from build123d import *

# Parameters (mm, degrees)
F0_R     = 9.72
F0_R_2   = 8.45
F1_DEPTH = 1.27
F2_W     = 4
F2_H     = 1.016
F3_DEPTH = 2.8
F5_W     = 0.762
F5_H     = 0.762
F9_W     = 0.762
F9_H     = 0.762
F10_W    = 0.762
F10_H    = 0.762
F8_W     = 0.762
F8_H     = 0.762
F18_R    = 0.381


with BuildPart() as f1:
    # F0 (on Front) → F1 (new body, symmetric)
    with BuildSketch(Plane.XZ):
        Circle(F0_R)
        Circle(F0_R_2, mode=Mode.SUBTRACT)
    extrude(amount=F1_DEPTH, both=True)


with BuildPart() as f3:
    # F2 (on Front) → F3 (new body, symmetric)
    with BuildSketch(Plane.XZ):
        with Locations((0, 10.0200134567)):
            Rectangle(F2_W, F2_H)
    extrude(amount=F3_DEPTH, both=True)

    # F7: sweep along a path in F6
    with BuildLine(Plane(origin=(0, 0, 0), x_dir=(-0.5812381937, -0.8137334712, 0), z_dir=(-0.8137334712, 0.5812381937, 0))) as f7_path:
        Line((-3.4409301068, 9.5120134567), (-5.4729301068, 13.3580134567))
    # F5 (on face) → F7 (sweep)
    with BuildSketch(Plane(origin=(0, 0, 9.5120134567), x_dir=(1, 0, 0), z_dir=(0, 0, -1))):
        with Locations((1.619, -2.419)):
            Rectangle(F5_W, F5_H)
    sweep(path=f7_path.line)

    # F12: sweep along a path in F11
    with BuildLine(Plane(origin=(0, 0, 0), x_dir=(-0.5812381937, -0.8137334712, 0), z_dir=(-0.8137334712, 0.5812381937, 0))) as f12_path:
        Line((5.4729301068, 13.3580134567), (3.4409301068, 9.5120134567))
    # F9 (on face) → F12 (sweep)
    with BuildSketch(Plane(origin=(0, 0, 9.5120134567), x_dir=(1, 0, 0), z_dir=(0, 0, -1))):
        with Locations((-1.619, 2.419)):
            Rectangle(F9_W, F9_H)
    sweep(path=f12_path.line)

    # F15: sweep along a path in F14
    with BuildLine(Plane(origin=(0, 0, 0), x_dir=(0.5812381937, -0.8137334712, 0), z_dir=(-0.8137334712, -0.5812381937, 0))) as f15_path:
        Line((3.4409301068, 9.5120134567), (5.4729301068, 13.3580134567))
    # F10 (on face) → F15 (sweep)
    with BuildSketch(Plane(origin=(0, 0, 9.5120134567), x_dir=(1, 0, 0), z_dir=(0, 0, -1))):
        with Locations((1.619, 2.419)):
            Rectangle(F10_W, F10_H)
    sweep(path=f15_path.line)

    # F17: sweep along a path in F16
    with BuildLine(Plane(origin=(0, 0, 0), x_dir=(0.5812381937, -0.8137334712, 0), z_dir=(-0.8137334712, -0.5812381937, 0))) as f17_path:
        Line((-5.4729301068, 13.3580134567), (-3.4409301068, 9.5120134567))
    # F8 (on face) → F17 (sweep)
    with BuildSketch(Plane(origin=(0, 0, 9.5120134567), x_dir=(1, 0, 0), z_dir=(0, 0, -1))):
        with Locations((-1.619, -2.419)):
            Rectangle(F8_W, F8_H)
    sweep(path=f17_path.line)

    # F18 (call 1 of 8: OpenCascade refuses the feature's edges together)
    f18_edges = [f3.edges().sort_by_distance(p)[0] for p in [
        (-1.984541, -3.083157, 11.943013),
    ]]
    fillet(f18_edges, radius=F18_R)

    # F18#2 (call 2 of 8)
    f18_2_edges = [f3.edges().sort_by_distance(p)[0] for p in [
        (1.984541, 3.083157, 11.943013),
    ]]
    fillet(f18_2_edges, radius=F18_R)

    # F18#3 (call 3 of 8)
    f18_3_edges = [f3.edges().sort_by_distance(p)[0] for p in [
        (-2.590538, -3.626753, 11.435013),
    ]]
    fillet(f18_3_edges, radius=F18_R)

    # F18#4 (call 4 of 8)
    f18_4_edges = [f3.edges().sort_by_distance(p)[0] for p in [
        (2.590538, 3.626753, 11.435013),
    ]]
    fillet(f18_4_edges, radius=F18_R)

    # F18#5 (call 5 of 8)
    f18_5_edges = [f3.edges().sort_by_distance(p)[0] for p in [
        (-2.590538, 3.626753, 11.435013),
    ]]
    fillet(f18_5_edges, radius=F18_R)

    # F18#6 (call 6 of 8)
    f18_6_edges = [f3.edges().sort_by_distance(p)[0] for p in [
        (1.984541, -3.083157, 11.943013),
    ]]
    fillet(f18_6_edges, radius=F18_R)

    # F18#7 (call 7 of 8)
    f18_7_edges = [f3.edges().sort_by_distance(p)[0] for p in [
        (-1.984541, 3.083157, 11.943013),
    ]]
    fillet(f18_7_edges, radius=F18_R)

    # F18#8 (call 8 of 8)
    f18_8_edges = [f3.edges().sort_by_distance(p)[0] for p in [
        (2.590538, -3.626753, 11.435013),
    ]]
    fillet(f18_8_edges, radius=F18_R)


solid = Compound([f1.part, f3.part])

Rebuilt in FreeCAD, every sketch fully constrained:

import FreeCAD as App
import Part
import Sketcher
from FreeCAD import Vector
Q = App.Units.Quantity


def edges_at(feature, points):
    """Names of the edges that pass closest to the given points."""
    edges = feature.Shape.Edges
    near = lambda p: min(range(len(edges)), key=lambda i: edges[i].distToShape(Part.Vertex(*p))[0])
    return sorted({f"Edge{near(p) + 1}" for p in points})

doc = App.newDocument("Part")
body = doc.addObject("PartDesign::Body", "Body")

sketch1 = body.newObject("Sketcher::SketchObject", "Sketch")
sketch1.AttachmentSupport = (doc.getObject("XZ_Plane"), [""])
sketch1.MapMode = "FlatFace"
sketch1.addGeometry(Part.Circle(Vector(0, 0, 0), Vector(0, 0, 1), 10), False)
sketch1.addGeometry(Part.Circle(Vector(0, 0, 0), Vector(0, 0, 1), 8), False)
sketch1.addConstraint(Sketcher.Constraint("Coincident", 0, 3, -1, 1))
sketch1.addConstraint(Sketcher.Constraint("Coincident", 1, 3, -1, 1))
sketch1.addConstraint(Sketcher.Constraint("Diameter", 0, Q("19.44 mm")))
sketch1.addConstraint(Sketcher.Constraint("Diameter", 1, Q("16.9 mm")))
pad1 = body.newObject("PartDesign::Pad", "Pad")
pad1.Profile = sketch1
pad1.Length = Q("0.1 in")
pad1.Midplane = True
body2 = doc.addObject("PartDesign::Body", "Body001")

sketch2 = body2.newObject("Sketcher::SketchObject", "Sketch001")
sketch2.AttachmentSupport = (doc.getObject("XZ_Plane001"), [""])
sketch2.MapMode = "FlatFace"
sketch2.addGeometry(Part.LineSegment(Vector(-2, 10.5, 0), Vector(-2, 9.5, 0)), False)
sketch2.addGeometry(Part.LineSegment(Vector(-2, 9.5, 0), Vector(2, 9.5, 0)), False)
sketch2.addGeometry(Part.LineSegment(Vector(2, 9.5, 0), Vector(2, 10.5, 0)), False)
sketch2.addGeometry(Part.LineSegment(Vector(2, 10.5, 0), Vector(-2, 10.5, 0)), False)
sketch2.addConstraint(Sketcher.Constraint("Coincident", 0, 2, 1, 1))
sketch2.addConstraint(Sketcher.Constraint("Coincident", 1, 2, 2, 1))
sketch2.addConstraint(Sketcher.Constraint("Coincident", 2, 2, 3, 1))
sketch2.addConstraint(Sketcher.Constraint("Coincident", 3, 2, 0, 1))
sketch2.addConstraint(Sketcher.Constraint("Vertical", 0))
sketch2.addConstraint(Sketcher.Constraint("Horizontal", 1))
sketch2.addConstraint(Sketcher.Constraint("Vertical", 2))
sketch2.addConstraint(Sketcher.Constraint("Horizontal", 3))
sketch2.addConstraint(Sketcher.Constraint("DistanceY", 0, 2, 0, 1, Q("0.04 in")))
sketch2.addConstraint(Sketcher.Constraint("DistanceX", 1, 1, 1, 2, Q("4 mm")))
sketch2.addConstraint(Sketcher.Constraint("DistanceX", 0, 2, -1, 1, Q("2 mm")))
sketch2.addConstraint(Sketcher.Constraint("DistanceY", -1, 1, 0, 2, Q("9.512013 mm")))
pad2 = body2.newObject("PartDesign::Pad", "Pad001")
pad2.Profile = sketch2
pad2.Length = 5.6
pad2.Midplane = True

sketch3 = body2.newObject("Sketcher::SketchObject", "Sketch002")
sketch3.AttachmentSupport = (doc.getObject("XY_Plane001"), [""])
sketch3.MapMode = "FlatFace"
sketch3.AttachmentOffset = App.Placement(Vector(0, 0, 9.512013), App.Rotation())
sketch3.addGeometry(Part.LineSegment(Vector(1.2, 2, 0), Vector(1.2, 2.8, 0)), False)
sketch3.addGeometry(Part.LineSegment(Vector(1.2, 2.8, 0), Vector(2, 2.8, 0)), False)
sketch3.addGeometry(Part.LineSegment(Vector(2, 2.8, 0), Vector(2, 2, 0)), False)
sketch3.addGeometry(Part.LineSegment(Vector(2, 2, 0), Vector(1.2, 2, 0)), False)
sketch3.addConstraint(Sketcher.Constraint("Coincident", 0, 2, 1, 1))
sketch3.addConstraint(Sketcher.Constraint("Coincident", 1, 2, 2, 1))
sketch3.addConstraint(Sketcher.Constraint("Coincident", 2, 2, 3, 1))
sketch3.addConstraint(Sketcher.Constraint("Coincident", 3, 2, 0, 1))
sketch3.addConstraint(Sketcher.Constraint("Vertical", 0))
sketch3.addConstraint(Sketcher.Constraint("Horizontal", 1))
sketch3.addConstraint(Sketcher.Constraint("Vertical", 2))
sketch3.addConstraint(Sketcher.Constraint("Horizontal", 3))
sketch3.addConstraint(Sketcher.Constraint("Equal", 3, 0))
sketch3.addConstraint(Sketcher.Constraint("DistanceX", 1, 1, 1, 2, Q("0.03 in")))
sketch3.addConstraint(Sketcher.Constraint("DistanceX", -1, 1, 0, 2, Q("1.238 mm")))
sketch3.addConstraint(Sketcher.Constraint("DistanceY", -1, 1, 0, 2, Q("2.8 mm")))

sketch4 = body2.newObject("Sketcher::SketchObject", "Sketch003")
sketch4.Placement = App.Placement(Vector(0, -1.088325, 0.467902), App.Rotation(Vector(0, 0.394972596, 0.918692902), Vector(1, 0, 0), Vector(0, 0.918692902, -0.394972596), "ZXY"))
sketch4.addGeometry(Part.LineSegment(Vector(9.8, 2, 0), Vector(14, 3.2, 0)), False)
sketch4.addConstraint(Sketcher.Constraint("DistanceY", -1, 1, 0, 1, Q("2 mm")))
sketch4.addConstraint(Sketcher.Constraint("Distance", 0, Q("4.349798 mm")))
sketch4.addConstraint(Sketcher.Constraint("DistanceX", -1, 1, 0, 1, Q("9.844543 mm")))
sketch4.addConstraint(Sketcher.Constraint("DistanceX", -1, 1, 0, 2, Q("14.030925 mm")))
doc.recompute()

additivepipe = body2.newObject("PartDesign::AdditivePipe", "AdditivePipe")
additivepipe.Profile = sketch3
additivepipe.Spine = (sketch4, ["Edge1"])

sketch5 = body2.newObject("Sketcher::SketchObject", "Sketch004")
sketch5.AttachmentSupport = (doc.getObject("XY_Plane001"), [""])
sketch5.MapMode = "FlatFace"
sketch5.AttachmentOffset = App.Placement(Vector(0, 0, 9.512013), App.Rotation())
sketch5.addGeometry(Part.LineSegment(Vector(-2, -2.8, 0), Vector(-2, -2, 0)), False)
sketch5.addGeometry(Part.LineSegment(Vector(-2, -2, 0), Vector(-1.2, -2, 0)), False)
sketch5.addGeometry(Part.LineSegment(Vector(-1.2, -2, 0), Vector(-1.2, -2.8, 0)), False)
sketch5.addGeometry(Part.LineSegment(Vector(-1.2, -2.8, 0), Vector(-2, -2.8, 0)), False)
sketch5.addConstraint(Sketcher.Constraint("Coincident", 0, 2, 1, 1))
sketch5.addConstraint(Sketcher.Constraint("Coincident", 1, 2, 2, 1))
sketch5.addConstraint(Sketcher.Constraint("Coincident", 2, 2, 3, 1))
sketch5.addConstraint(Sketcher.Constraint("Coincident", 3, 2, 0, 1))
sketch5.addConstraint(Sketcher.Constraint("Vertical", 0))
sketch5.addConstraint(Sketcher.Constraint("Horizontal", 1))
sketch5.addConstraint(Sketcher.Constraint("Vertical", 2))
sketch5.addConstraint(Sketcher.Constraint("Horizontal", 3))
sketch5.addConstraint(Sketcher.Constraint("Equal", 3, 0))
sketch5.addConstraint(Sketcher.Constraint("DistanceX", 1, 1, 1, 2, Q("0.03 in")))
sketch5.addConstraint(Sketcher.Constraint("DistanceX", 0, 2, -1, 1, Q("2 mm")))
sketch5.addConstraint(Sketcher.Constraint("DistanceY", 0, 2, -1, 1, Q("2.038 mm")))

sketch6 = body2.newObject("Sketcher::SketchObject", "Sketch005")
sketch6.Placement = App.Placement(Vector(0, 1.088325, 0.467902), App.Rotation(Vector(0, 0.394972596, -0.918692902), Vector(1, 0, 0), Vector(0, -0.918692902, -0.394972596), "ZXY"))
sketch6.addGeometry(Part.LineSegment(Vector(-14, -3.2, 0), Vector(-9.8, -2, 0)), False)
sketch6.addConstraint(Sketcher.Constraint("DistanceY", 0, 2, -1, 1, Q("2 mm")))
sketch6.addConstraint(Sketcher.Constraint("Distance", 0, Q("4.349798 mm")))
sketch6.addConstraint(Sketcher.Constraint("DistanceX", 0, 1, -1, 1, Q("14.030925 mm")))
sketch6.addConstraint(Sketcher.Constraint("DistanceY", 0, 1, -1, 1, Q("3.181076 mm")))
doc.recompute()

additivepipe2 = body2.newObject("PartDesign::AdditivePipe", "AdditivePipe001")
additivepipe2.Profile = sketch5
additivepipe2.Spine = (sketch6, ["Edge1"])

sketch7 = body2.newObject("Sketcher::SketchObject", "Sketch006")
sketch7.AttachmentSupport = (doc.getObject("XY_Plane001"), [""])
sketch7.MapMode = "FlatFace"
sketch7.AttachmentOffset = App.Placement(Vector(0, 0, 9.512013), App.Rotation())
sketch7.addGeometry(Part.LineSegment(Vector(1.2, -2.8, 0), Vector(1.2, -2, 0)), False)
sketch7.addGeometry(Part.LineSegment(Vector(1.2, -2, 0), Vector(2, -2, 0)), False)
sketch7.addGeometry(Part.LineSegment(Vector(2, -2, 0), Vector(2, -2.8, 0)), False)
sketch7.addGeometry(Part.LineSegment(Vector(2, -2.8, 0), Vector(1.2, -2.8, 0)), False)
sketch7.addConstraint(Sketcher.Constraint("Coincident", 0, 2, 1, 1))
sketch7.addConstraint(Sketcher.Constraint("Coincident", 1, 2, 2, 1))
sketch7.addConstraint(Sketcher.Constraint("Coincident", 2, 2, 3, 1))
sketch7.addConstraint(Sketcher.Constraint("Coincident", 3, 2, 0, 1))
sketch7.addConstraint(Sketcher.Constraint("Vertical", 0))
sketch7.addConstraint(Sketcher.Constraint("Horizontal", 1))
sketch7.addConstraint(Sketcher.Constraint("Vertical", 2))
sketch7.addConstraint(Sketcher.Constraint("Horizontal", 3))
sketch7.addConstraint(Sketcher.Constraint("Equal", 3, 0))
sketch7.addConstraint(Sketcher.Constraint("DistanceX", 1, 1, 1, 2, Q("0.03 in")))
sketch7.addConstraint(Sketcher.Constraint("DistanceX", -1, 1, 0, 2, Q("1.238 mm")))
sketch7.addConstraint(Sketcher.Constraint("DistanceY", 0, 2, -1, 1, Q("2.038 mm")))

sketch8 = body2.newObject("Sketcher::SketchObject", "Sketch007")
sketch8.Placement = App.Placement(Vector(0, 1.088325, 0.467902), App.Rotation(Vector(0, -0.394972596, 0.918692902), Vector(1, 0, 0), Vector(0, 0.918692902, 0.394972596), "ZXY"))
sketch8.addGeometry(Part.LineSegment(Vector(9.8, 2, 0), Vector(14, 3.2, 0)), False)
sketch8.addConstraint(Sketcher.Constraint("DistanceY", -1, 1, 0, 1, Q("2 mm")))
sketch8.addConstraint(Sketcher.Constraint("Distance", 0, Q("4.349798 mm")))
sketch8.addConstraint(Sketcher.Constraint("DistanceX", -1, 1, 0, 1, Q("9.844543 mm")))
sketch8.addConstraint(Sketcher.Constraint("DistanceX", -1, 1, 0, 2, Q("14.030925 mm")))
doc.recompute()

additivepipe3 = body2.newObject("PartDesign::AdditivePipe", "AdditivePipe002")
additivepipe3.Profile = sketch7
additivepipe3.Spine = (sketch8, ["Edge1"])

sketch9 = body2.newObject("Sketcher::SketchObject", "Sketch008")
sketch9.AttachmentSupport = (doc.getObject("XY_Plane001"), [""])
sketch9.MapMode = "FlatFace"
sketch9.AttachmentOffset = App.Placement(Vector(0, 0, 9.512013), App.Rotation())
sketch9.addGeometry(Part.LineSegment(Vector(-2, 2, 0), Vector(-2, 2.8, 0)), False)
sketch9.addGeometry(Part.LineSegment(Vector(-2, 2.8, 0), Vector(-1.2, 2.8, 0)), False)
sketch9.addGeometry(Part.LineSegment(Vector(-1.2, 2.8, 0), Vector(-1.2, 2, 0)), False)
sketch9.addGeometry(Part.LineSegment(Vector(-1.2, 2, 0), Vector(-2, 2, 0)), False)
sketch9.addConstraint(Sketcher.Constraint("Coincident", 0, 2, 1, 1))
sketch9.addConstraint(Sketcher.Constraint("Coincident", 1, 2, 2, 1))
sketch9.addConstraint(Sketcher.Constraint("Coincident", 2, 2, 3, 1))
sketch9.addConstraint(Sketcher.Constraint("Coincident", 3, 2, 0, 1))
sketch9.addConstraint(Sketcher.Constraint("Vertical", 0))
sketch9.addConstraint(Sketcher.Constraint("Horizontal", 1))
sketch9.addConstraint(Sketcher.Constraint("Vertical", 2))
sketch9.addConstraint(Sketcher.Constraint("Horizontal", 3))
sketch9.addConstraint(Sketcher.Constraint("Equal", 3, 0))
sketch9.addConstraint(Sketcher.Constraint("DistanceX", 1, 1, 1, 2, Q("0.03 in")))
sketch9.addConstraint(Sketcher.Constraint("DistanceX", 0, 2, -1, 1, Q("2 mm")))
sketch9.addConstraint(Sketcher.Constraint("DistanceY", -1, 1, 0, 2, Q("2.8 mm")))

sketch10 = body2.newObject("Sketcher::SketchObject", "Sketch009")
sketch10.Placement = App.Placement(Vector(0, -1.088325, 0.467902), App.Rotation(Vector(0, -0.394972596, -0.918692902), Vector(1, 0, 0), Vector(0, -0.918692902, 0.394972596), "ZXY"))
sketch10.addGeometry(Part.LineSegment(Vector(-14, -3.2, 0), Vector(-9.8, -2, 0)), False)
sketch10.addConstraint(Sketcher.Constraint("DistanceY", 0, 2, -1, 1, Q("2 mm")))
sketch10.addConstraint(Sketcher.Constraint("Distance", 0, Q("4.349798 mm")))
sketch10.addConstraint(Sketcher.Constraint("DistanceX", 0, 1, -1, 1, Q("14.030925 mm")))
sketch10.addConstraint(Sketcher.Constraint("DistanceY", 0, 1, -1, 1, Q("3.181076 mm")))
doc.recompute()

additivepipe4 = body2.newObject("PartDesign::AdditivePipe", "AdditivePipe003")
additivepipe4.Profile = sketch9
additivepipe4.Spine = (sketch10, ["Edge1"])
doc.recompute()

fillet = body2.newObject("PartDesign::Fillet", "Fillet")
fillet.Base = (additivepipe4, edges_at(additivepipe4, [(-1.985, -3.083, 11.943)]))
fillet.Radius = Q("0.015 in")
doc.recompute()

fillet2 = body2.newObject("PartDesign::Fillet", "Fillet001")
fillet2.Base = (fillet, edges_at(fillet, [(1.985, 3.083, 11.943)]))
fillet2.Radius = Q("0.015 in")
doc.recompute()

fillet3 = body2.newObject("PartDesign::Fillet", "Fillet002")
fillet3.Base = (fillet2, edges_at(fillet2, [(-2.591, -3.627, 11.435)]))
fillet3.Radius = Q("0.015 in")
doc.recompute()

fillet4 = body2.newObject("PartDesign::Fillet", "Fillet003")
fillet4.Base = (fillet3, edges_at(fillet3, [(2.591, 3.627, 11.435)]))
fillet4.Radius = Q("0.015 in")
doc.recompute()

fillet5 = body2.newObject("PartDesign::Fillet", "Fillet004")
fillet5.Base = (fillet4, edges_at(fillet4, [(-2.591, 3.627, 11.435)]))
fillet5.Radius = Q("0.015 in")
doc.recompute()

fillet6 = body2.newObject("PartDesign::Fillet", "Fillet005")
fillet6.Base = (fillet5, edges_at(fillet5, [(1.985, -3.083, 11.943)]))
fillet6.Radius = Q("0.015 in")
doc.recompute()

fillet7 = body2.newObject("PartDesign::Fillet", "Fillet006")
fillet7.Base = (fillet6, edges_at(fillet6, [(-1.985, 3.083, 11.943)]))
fillet7.Radius = Q("0.015 in")
doc.recompute()

fillet8 = body2.newObject("PartDesign::Fillet", "Fillet007")
fillet8.Base = (fillet7, edges_at(fillet7, [(2.591, -3.627, 11.435)]))
fillet8.Radius = Q("0.015 in")

doc.recompute()
